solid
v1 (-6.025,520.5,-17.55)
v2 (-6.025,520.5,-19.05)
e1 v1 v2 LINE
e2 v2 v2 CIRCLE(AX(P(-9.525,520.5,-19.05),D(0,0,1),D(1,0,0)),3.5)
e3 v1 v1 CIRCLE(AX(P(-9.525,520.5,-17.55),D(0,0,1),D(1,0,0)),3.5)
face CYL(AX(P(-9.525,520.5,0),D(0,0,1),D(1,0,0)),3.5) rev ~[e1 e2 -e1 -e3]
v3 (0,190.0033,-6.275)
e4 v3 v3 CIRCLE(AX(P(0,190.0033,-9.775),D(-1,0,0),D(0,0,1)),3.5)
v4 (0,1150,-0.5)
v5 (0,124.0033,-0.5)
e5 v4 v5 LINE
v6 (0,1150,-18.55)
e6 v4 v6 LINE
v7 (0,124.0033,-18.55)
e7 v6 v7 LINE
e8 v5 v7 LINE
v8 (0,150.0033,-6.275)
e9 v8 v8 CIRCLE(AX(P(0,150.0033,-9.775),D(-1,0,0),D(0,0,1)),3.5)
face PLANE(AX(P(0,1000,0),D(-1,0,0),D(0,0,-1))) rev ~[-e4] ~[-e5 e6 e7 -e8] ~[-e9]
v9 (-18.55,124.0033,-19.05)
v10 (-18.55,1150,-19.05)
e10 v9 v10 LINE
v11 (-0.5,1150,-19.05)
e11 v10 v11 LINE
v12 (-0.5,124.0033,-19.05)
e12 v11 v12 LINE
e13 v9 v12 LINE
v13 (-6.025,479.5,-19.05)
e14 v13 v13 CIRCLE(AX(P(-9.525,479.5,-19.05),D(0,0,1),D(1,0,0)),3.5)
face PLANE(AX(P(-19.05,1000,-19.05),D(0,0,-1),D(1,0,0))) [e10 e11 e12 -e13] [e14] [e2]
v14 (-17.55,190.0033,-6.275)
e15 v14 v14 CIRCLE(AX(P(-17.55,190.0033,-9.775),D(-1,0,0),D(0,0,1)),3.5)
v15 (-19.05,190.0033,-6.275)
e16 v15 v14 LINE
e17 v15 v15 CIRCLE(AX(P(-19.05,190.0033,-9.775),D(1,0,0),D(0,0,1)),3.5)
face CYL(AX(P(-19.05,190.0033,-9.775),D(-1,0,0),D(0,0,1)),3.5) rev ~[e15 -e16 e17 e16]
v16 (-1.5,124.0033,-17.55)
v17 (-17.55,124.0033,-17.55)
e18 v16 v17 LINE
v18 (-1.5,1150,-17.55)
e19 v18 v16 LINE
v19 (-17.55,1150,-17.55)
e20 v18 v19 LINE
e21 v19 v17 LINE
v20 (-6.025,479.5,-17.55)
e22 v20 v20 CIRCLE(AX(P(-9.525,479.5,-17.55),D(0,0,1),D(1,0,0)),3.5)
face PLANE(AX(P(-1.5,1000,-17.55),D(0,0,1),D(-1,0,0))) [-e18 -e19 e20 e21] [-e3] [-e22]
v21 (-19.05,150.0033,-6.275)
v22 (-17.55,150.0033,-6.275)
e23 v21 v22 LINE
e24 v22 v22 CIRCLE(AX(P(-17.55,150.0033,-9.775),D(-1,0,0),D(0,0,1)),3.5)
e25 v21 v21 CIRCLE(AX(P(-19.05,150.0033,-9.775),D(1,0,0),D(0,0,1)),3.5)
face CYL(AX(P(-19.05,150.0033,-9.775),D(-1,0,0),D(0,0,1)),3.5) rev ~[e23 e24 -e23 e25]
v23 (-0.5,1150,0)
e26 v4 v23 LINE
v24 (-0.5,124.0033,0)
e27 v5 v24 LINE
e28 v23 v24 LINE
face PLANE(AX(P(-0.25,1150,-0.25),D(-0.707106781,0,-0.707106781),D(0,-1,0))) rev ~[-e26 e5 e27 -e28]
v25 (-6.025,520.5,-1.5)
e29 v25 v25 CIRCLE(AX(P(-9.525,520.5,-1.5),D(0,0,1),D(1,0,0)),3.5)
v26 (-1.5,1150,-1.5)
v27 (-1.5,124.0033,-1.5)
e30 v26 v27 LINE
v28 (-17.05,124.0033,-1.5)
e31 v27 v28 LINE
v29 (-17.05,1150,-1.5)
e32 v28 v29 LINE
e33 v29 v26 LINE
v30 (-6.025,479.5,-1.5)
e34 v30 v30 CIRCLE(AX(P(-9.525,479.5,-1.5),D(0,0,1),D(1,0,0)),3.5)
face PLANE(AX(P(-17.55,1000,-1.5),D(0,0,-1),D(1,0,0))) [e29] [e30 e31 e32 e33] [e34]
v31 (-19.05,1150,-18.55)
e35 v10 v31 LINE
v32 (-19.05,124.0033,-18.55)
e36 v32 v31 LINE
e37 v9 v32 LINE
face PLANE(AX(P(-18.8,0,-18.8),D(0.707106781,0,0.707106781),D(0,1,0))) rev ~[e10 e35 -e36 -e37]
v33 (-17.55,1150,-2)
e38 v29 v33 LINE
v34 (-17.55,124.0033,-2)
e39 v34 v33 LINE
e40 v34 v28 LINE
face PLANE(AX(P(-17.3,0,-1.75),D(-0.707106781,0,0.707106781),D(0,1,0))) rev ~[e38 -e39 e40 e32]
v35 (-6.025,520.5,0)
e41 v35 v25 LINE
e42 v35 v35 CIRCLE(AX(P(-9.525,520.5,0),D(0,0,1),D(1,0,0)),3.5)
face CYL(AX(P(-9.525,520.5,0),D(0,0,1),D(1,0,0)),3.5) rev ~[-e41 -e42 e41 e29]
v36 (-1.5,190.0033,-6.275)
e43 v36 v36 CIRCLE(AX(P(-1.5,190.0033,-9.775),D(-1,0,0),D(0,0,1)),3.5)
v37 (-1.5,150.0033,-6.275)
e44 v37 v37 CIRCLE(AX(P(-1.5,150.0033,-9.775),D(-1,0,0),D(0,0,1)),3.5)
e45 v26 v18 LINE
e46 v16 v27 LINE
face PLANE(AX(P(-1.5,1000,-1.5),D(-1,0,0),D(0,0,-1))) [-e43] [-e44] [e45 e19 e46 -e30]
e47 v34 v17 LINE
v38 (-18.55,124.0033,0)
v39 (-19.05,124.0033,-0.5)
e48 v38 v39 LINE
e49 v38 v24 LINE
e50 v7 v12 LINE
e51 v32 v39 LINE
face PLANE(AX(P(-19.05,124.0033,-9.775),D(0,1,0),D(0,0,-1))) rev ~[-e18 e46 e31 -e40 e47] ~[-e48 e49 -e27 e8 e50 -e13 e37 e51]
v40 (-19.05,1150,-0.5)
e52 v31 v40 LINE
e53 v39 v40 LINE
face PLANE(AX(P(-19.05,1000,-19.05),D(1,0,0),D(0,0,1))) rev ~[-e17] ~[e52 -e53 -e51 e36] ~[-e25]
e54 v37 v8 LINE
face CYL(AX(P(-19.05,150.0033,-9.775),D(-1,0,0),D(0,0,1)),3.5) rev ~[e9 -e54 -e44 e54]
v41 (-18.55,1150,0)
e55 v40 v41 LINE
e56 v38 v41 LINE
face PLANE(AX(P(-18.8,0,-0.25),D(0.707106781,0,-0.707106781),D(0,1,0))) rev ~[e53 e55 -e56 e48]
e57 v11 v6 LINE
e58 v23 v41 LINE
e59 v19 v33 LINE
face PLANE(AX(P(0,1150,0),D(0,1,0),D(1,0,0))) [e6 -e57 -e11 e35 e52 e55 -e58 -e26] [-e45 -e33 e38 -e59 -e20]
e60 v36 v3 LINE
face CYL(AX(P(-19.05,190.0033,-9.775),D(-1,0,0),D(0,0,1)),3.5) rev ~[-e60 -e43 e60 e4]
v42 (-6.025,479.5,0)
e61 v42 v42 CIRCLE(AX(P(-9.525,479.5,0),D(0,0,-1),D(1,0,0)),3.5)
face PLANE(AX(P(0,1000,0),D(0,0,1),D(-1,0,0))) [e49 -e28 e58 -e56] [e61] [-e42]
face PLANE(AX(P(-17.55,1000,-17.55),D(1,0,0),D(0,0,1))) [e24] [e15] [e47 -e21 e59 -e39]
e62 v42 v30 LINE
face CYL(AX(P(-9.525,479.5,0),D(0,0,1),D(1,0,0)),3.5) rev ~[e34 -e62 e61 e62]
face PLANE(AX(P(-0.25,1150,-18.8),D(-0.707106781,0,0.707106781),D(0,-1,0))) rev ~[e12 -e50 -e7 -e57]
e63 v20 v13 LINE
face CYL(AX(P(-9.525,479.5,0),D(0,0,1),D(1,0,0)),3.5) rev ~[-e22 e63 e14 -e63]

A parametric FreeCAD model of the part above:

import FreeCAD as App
import Part
import Sketcher

V = App.Vector
Q = App.Units.Quantity


def edges_at(feature, points):
    """Names of the edges that pass closest to the given points."""
    edges = feature.Shape.Edges
    near = lambda p: min(range(len(edges)), key=lambda i: edges[i].distToShape(Part.Vertex(*p))[0])
    return sorted({f"Edge{near(p) + 1}" for p in points})

doc = App.newDocument("Part")
body = doc.addObject("PartDesign::Body", "Body")

# Sketch on XZ plane
sketch1 = doc.addObject("Sketcher::SketchObject", "Sketch")
body.addObject(sketch1)
sketch1.AttachmentSupport = (doc.XZ_Plane, [""])
sketch1.MapMode = "FlatFace"
sketch1.addGeometry(Part.LineSegment(V(-19.05, 0, 0), V(0, 0, 0)), False)
sketch1.addGeometry(Part.LineSegment(V(0, 0, 0), V(0, -19.05, 0)), False)
sketch1.addGeometry(Part.LineSegment(V(0, -19.05, 0), V(-19.05, -19.05, 0)), False)
sketch1.addGeometry(Part.LineSegment(V(-19.05, -19.05, 0), V(-19.05, 0, 0)), False)
sketch1.addGeometry(Part.LineSegment(V(-17.55, -1.5, 0), V(-17.55, -17.55, 0)), False)
sketch1.addGeometry(Part.LineSegment(V(-17.55, -17.55, 0), V(-1.5, -17.55, 0)), False)
sketch1.addGeometry(Part.LineSegment(V(-1.5, -17.55, 0), V(-1.5, -1.5, 0)), False)
sketch1.addGeometry(Part.LineSegment(V(-1.5, -1.5, 0), V(-17.55, -1.5, 0)), False)
sketch1.addConstraint(Sketcher.Constraint("Coincident", 0, 2, 1, 1))
sketch1.addConstraint(Sketcher.Constraint("Coincident", 1, 2, 2, 1))
sketch1.addConstraint(Sketcher.Constraint("Coincident", 2, 2, 3, 1))
sketch1.addConstraint(Sketcher.Constraint("Coincident", 3, 2, 0, 1))
sketch1.addConstraint(Sketcher.Constraint("Coincident", 4, 2, 5, 1))
sketch1.addConstraint(Sketcher.Constraint("Coincident", 5, 2, 6, 1))
sketch1.addConstraint(Sketcher.Constraint("Coincident", 6, 2, 7, 1))
sketch1.addConstraint(Sketcher.Constraint("Coincident", 7, 2, 4, 1))
sketch1.addConstraint(Sketcher.Constraint("Horizontal", 0))
sketch1.addConstraint(Sketcher.Constraint("Vertical", 1))
sketch1.addConstraint(Sketcher.Constraint("Horizontal", 2))
sketch1.addConstraint(Sketcher.Constraint("Vertical", 3))
sketch1.addConstraint(Sketcher.Constraint("Vertical", 4))
sketch1.addConstraint(Sketcher.Constraint("Horizontal", 5))
sketch1.addConstraint(Sketcher.Constraint("Vertical", 6))
sketch1.addConstraint(Sketcher.Constraint("Horizontal", 7))
sketch1.addConstraint(Sketcher.Constraint("Coincident", 0, 2, -1, 1))
sketch1.addConstraint(Sketcher.Constraint("Equal", 2, 1))
sketch1.addConstraint(Sketcher.Constraint("Equal", 7, 4))
sketch1.addConstraint(Sketcher.Constraint("DistanceX", 0, 1, 0, 2, Q("19.05 mm")))
sketch1.addConstraint(Sketcher.Constraint("DistanceX", 5, 1, 5, 2, Q("16.05 mm")))
sketch1.addConstraint(Sketcher.Constraint("DistanceX", 5, 2, -1, 1, Q("1.5 mm")))
sketch1.addConstraint(Sketcher.Constraint("DistanceY", 6, 2, -1, 1, Q("1.5 mm")))
pad1 = doc.addObject("PartDesign::Pad", "Pad")
body.addObject(pad1)
pad1.Profile = sketch1
pad1.Length = 1000
pad1.Reversed = True

# Sketch on XY plane
sketch2 = doc.addObject("Sketcher::SketchObject", "Sketch001")
body.addObject(sketch2)
sketch2.AttachmentSupport = (doc.XY_Plane, [""])
sketch2.MapMode = "FlatFace"
sketch2.addGeometry(Part.Circle(V(-9.525, 479.5, 0), V(0, 0, 1), 3.5), False)
sketch2.addGeometry(Part.Circle(V(-9.525, 520.5, 0), V(0, 0, 1), 3.5), False)
sketch2.addConstraint(Sketcher.Constraint("Equal", 0, 1))
sketch2.addConstraint(Sketcher.Constraint("Vertical", 0, 3, 1, 3))
sketch2.addConstraint(Sketcher.Constraint("Diameter", 0, Q("7 mm")))
sketch2.addConstraint(Sketcher.Constraint("DistanceY", 0, 3, 1, 3, Q("41 mm")))
sketch2.addConstraint(Sketcher.Constraint("DistanceY", -1, 1, 0, 3, Q("479.5 mm")))
sketch2.addConstraint(Sketcher.Constraint("DistanceX", 0, 3, -1, 1, Q("9.525 mm")))
pocket1 = doc.addObject("PartDesign::Pocket", "Pocket")
body.addObject(pocket1)
pocket1.Profile = sketch2
pocket1.Length = 20

# Sketch on XZ plane
sketch3 = doc.addObject("Sketcher::SketchObject", "Sketch002")
body.addObject(sketch3)
sketch3.AttachmentSupport = (doc.XZ_Plane, [""])
sketch3.MapMode = "FlatFace"
sketch3.AttachmentOffset = App.Placement(V(0, 0, -1000), App.Rotation())
sketch3.addGeometry(Part.LineSegment(V(0, -19.05, 0), V(-19.05, -19.05, 0)), False)
sketch3.addGeometry(Part.LineSegment(V(-19.05, -19.05, 0), V(-19.05, 0, 0)), False)
sketch3.addGeometry(Part.LineSegment(V(-19.05, 0, 0), V(0, 0, 0)), False)
sketch3.addGeometry(Part.LineSegment(V(0, 0, 0), V(0, -19.05, 0)), False)
sketch3.addGeometry(Part.LineSegment(V(-1.5, -1.5, 0), V(-17.55, -1.5, 0)), False)
sketch3.addGeometry(Part.LineSegment(V(-17.55, -1.5, 0), V(-17.55, -17.55, 0)), False)
sketch3.addGeometry(Part.LineSegment(V(-17.55, -17.55, 0), V(-1.5, -17.55, 0)), False)
sketch3.addGeometry(Part.LineSegment(V(-1.5, -17.55, 0), V(-1.5, -1.5, 0)), False)
sketch3.addConstraint(Sketcher.Constraint("Coincident", 0, 2, 1, 1))
sketch3.addConstraint(Sketcher.Constraint("Coincident", 1, 2, 2, 1))
sketch3.addConstraint(Sketcher.Constraint("Coincident", 2, 2, 3, 1))
sketch3.addConstraint(Sketcher.Constraint("Coincident", 3, 2, 0, 1))
sketch3.addConstraint(Sketcher.Constraint("Coincident", 4, 2, 5, 1))
sketch3.addConstraint(Sketcher.Constraint("Coincident", 5, 2, 6, 1))
sketch3.addConstraint(Sketcher.Constraint("Coincident", 6, 2, 7, 1))
sketch3.addConstraint(Sketcher.Constraint("Coincident", 7, 2, 4, 1))
sketch3.addConstraint(Sketcher.Constraint("Horizontal", 0))
sketch3.addConstraint(Sketcher.Constraint("Vertical", 1))
sketch3.addConstraint(Sketcher.Constraint("Horizontal", 2))
sketch3.addConstraint(Sketcher.Constraint("Vertical", 3))
sketch3.addConstraint(Sketcher.Constraint("Horizontal", 4))
sketch3.addConstraint(Sketcher.Constraint("Vertical", 5))
sketch3.addConstraint(Sketcher.Constraint("Horizontal", 6))
sketch3.addConstraint(Sketcher.Constraint("Vertical", 7))
sketch3.addConstraint(Sketcher.Constraint("Coincident", 2, 2, -1, 1))
sketch3.addConstraint(Sketcher.Constraint("Equal", 2, 1))
sketch3.addConstraint(Sketcher.Constraint("Equal", 6, 5))
sketch3.addConstraint(Sketcher.Constraint("DistanceX", 0, 2, 0, 1, Q("19.05 mm")))
sketch3.addConstraint(Sketcher.Constraint("DistanceX", 4, 2, 4, 1, Q("16.05 mm")))
sketch3.addConstraint(Sketcher.Constraint("DistanceY", 4, 2, -1, 1, Q("1.5 mm")))
sketch3.addConstraint(Sketcher.Constraint("DistanceX", 6, 2, -1, 1, Q("1.5 mm")))
pad2 = doc.addObject("PartDesign::Pad", "Pad001")
body.addObject(pad2)
pad2.Profile = sketch3
pad2.Length = 150
pad2.Reversed = True
doc.recompute()

chamfer = doc.addObject("PartDesign::Chamfer", "Chamfer")
body.addObject(chamfer)
chamfer.Base = (pad2, edges_at(pad2, [
    (0, 575, 0),
    (-17.55, 575, -1.5),
    (-19.05, 575, -19.05),
    (0, 575, -19.05),
]))
chamfer.Size = 0.5
doc.recompute()

chamfer2 = doc.addObject("PartDesign::Chamfer", "Chamfer001")
body.addObject(chamfer2)
chamfer2.Base = (chamfer, edges_at(chamfer, [(-19.05, 575, 0)]))
chamfer2.Size = 0.5

# Sketch on YZ plane
sketch4 = doc.addObject("Sketcher::SketchObject", "Sketch003")
body.addObject(sketch4)
sketch4.AttachmentSupport = (doc.YZ_Plane, [""])
sketch4.MapMode = "FlatFace"
sketch4.AttachmentOffset = App.Placement(V(0, 0, -19.05), App.Rotation())
sketch4.addGeometry(Part.Circle(V(150.0033, -9.775, 0), V(0, 0, 1), 3.5), False)
sketch4.addGeometry(Part.Circle(V(190.0033, -9.775, 0), V(0, 0, 1), 3.5), False)
sketch4.addConstraint(Sketcher.Constraint("Equal", 0, 1))
sketch4.addConstraint(Sketcher.Constraint("Horizontal", 0, 3, 1, 3))
sketch4.addConstraint(Sketcher.Constraint("Diameter", 0, Q("7 mm")))
sketch4.addConstraint(Sketcher.Constraint("DistanceX", 0, 3, 1, 3, Q("40 mm")))
sketch4.addConstraint(Sketcher.Constraint("DistanceY", 0, 3, -1, 1, Q("9.775 mm")))
sketch4.addConstraint(Sketcher.Constraint("DistanceX", -1, 1, 0, 3, Q("150.0033 mm")))
pocket2 = doc.addObject("PartDesign::Pocket", "Pocket001")
body.addObject(pocket2)
pocket2.Profile = sketch4
pocket2.Length = 100
pocket2.Reversed = True

# Sketch on YZ plane
sketch5 = doc.addObject("Sketcher::SketchObject", "Sketch004")
body.addObject(sketch5)
sketch5.AttachmentSupport = (doc.YZ_Plane, [""])
sketch5.MapMode = "FlatFace"
sketch5.AttachmentOffset = App.Placement(V(0, 0, -19.05), App.Rotation())
sketch5.addGeometry(Part.LineSegment(V(124.0033, 36.5481, 0), V(124.0033, -81.3708, 0)), False)
sketch5.addGeometry(Part.LineSegment(V(124.0033, -81.3708, 0), V(0, -81.3708, 0)), False)
sketch5.addGeometry(Part.LineSegment(V(0, -81.3708, 0), V(0, 36.5481, 0)), False)
sketch5.addGeometry(Part.LineSegment(V(0, 36.5481, 0), V(124.0033, 36.5481, 0)), False)
sketch5.addConstraint(Sketcher.Constraint("Coincident", 0, 2, 1, 1))
sketch5.addConstraint(Sketcher.Constraint("Coincident", 1, 2, 2, 1))
sketch5.addConstraint(Sketcher.Constraint("Coincident", 2, 2, 3, 1))
sketch5.addConstraint(Sketcher.Constraint("Coincident", 3, 2, 0, 1))
sketch5.addConstraint(Sketcher.Constraint("Vertical", 0))
sketch5.addConstraint(Sketcher.Constraint("Horizontal", 1))
sketch5.addConstraint(Sketcher.Constraint("Vertical", 2))
sketch5.addConstraint(Sketcher.Constraint("Horizontal", 3))
sketch5.addConstraint(Sketcher.Constraint("PointOnObject", 1, 2, -2))
sketch5.addConstraint(Sketcher.Constraint("DistanceY", 0, 2, 0, 1, Q("117.919 mm")))
sketch5.addConstraint(Sketcher.Constraint("DistanceX", 1, 2, 1, 1, Q("124.0033 mm")))
sketch5.addConstraint(Sketcher.Constraint("DistanceY", -1, 1, 2, 2, Q("36.548 mm")))
pocket3 = doc.addObject("PartDesign::Pocket", "Pocket002")
body.addObject(pocket3)
pocket3.Profile = sketch5
pocket3.Length = 100
pocket3.Reversed = True

doc.recompute()
